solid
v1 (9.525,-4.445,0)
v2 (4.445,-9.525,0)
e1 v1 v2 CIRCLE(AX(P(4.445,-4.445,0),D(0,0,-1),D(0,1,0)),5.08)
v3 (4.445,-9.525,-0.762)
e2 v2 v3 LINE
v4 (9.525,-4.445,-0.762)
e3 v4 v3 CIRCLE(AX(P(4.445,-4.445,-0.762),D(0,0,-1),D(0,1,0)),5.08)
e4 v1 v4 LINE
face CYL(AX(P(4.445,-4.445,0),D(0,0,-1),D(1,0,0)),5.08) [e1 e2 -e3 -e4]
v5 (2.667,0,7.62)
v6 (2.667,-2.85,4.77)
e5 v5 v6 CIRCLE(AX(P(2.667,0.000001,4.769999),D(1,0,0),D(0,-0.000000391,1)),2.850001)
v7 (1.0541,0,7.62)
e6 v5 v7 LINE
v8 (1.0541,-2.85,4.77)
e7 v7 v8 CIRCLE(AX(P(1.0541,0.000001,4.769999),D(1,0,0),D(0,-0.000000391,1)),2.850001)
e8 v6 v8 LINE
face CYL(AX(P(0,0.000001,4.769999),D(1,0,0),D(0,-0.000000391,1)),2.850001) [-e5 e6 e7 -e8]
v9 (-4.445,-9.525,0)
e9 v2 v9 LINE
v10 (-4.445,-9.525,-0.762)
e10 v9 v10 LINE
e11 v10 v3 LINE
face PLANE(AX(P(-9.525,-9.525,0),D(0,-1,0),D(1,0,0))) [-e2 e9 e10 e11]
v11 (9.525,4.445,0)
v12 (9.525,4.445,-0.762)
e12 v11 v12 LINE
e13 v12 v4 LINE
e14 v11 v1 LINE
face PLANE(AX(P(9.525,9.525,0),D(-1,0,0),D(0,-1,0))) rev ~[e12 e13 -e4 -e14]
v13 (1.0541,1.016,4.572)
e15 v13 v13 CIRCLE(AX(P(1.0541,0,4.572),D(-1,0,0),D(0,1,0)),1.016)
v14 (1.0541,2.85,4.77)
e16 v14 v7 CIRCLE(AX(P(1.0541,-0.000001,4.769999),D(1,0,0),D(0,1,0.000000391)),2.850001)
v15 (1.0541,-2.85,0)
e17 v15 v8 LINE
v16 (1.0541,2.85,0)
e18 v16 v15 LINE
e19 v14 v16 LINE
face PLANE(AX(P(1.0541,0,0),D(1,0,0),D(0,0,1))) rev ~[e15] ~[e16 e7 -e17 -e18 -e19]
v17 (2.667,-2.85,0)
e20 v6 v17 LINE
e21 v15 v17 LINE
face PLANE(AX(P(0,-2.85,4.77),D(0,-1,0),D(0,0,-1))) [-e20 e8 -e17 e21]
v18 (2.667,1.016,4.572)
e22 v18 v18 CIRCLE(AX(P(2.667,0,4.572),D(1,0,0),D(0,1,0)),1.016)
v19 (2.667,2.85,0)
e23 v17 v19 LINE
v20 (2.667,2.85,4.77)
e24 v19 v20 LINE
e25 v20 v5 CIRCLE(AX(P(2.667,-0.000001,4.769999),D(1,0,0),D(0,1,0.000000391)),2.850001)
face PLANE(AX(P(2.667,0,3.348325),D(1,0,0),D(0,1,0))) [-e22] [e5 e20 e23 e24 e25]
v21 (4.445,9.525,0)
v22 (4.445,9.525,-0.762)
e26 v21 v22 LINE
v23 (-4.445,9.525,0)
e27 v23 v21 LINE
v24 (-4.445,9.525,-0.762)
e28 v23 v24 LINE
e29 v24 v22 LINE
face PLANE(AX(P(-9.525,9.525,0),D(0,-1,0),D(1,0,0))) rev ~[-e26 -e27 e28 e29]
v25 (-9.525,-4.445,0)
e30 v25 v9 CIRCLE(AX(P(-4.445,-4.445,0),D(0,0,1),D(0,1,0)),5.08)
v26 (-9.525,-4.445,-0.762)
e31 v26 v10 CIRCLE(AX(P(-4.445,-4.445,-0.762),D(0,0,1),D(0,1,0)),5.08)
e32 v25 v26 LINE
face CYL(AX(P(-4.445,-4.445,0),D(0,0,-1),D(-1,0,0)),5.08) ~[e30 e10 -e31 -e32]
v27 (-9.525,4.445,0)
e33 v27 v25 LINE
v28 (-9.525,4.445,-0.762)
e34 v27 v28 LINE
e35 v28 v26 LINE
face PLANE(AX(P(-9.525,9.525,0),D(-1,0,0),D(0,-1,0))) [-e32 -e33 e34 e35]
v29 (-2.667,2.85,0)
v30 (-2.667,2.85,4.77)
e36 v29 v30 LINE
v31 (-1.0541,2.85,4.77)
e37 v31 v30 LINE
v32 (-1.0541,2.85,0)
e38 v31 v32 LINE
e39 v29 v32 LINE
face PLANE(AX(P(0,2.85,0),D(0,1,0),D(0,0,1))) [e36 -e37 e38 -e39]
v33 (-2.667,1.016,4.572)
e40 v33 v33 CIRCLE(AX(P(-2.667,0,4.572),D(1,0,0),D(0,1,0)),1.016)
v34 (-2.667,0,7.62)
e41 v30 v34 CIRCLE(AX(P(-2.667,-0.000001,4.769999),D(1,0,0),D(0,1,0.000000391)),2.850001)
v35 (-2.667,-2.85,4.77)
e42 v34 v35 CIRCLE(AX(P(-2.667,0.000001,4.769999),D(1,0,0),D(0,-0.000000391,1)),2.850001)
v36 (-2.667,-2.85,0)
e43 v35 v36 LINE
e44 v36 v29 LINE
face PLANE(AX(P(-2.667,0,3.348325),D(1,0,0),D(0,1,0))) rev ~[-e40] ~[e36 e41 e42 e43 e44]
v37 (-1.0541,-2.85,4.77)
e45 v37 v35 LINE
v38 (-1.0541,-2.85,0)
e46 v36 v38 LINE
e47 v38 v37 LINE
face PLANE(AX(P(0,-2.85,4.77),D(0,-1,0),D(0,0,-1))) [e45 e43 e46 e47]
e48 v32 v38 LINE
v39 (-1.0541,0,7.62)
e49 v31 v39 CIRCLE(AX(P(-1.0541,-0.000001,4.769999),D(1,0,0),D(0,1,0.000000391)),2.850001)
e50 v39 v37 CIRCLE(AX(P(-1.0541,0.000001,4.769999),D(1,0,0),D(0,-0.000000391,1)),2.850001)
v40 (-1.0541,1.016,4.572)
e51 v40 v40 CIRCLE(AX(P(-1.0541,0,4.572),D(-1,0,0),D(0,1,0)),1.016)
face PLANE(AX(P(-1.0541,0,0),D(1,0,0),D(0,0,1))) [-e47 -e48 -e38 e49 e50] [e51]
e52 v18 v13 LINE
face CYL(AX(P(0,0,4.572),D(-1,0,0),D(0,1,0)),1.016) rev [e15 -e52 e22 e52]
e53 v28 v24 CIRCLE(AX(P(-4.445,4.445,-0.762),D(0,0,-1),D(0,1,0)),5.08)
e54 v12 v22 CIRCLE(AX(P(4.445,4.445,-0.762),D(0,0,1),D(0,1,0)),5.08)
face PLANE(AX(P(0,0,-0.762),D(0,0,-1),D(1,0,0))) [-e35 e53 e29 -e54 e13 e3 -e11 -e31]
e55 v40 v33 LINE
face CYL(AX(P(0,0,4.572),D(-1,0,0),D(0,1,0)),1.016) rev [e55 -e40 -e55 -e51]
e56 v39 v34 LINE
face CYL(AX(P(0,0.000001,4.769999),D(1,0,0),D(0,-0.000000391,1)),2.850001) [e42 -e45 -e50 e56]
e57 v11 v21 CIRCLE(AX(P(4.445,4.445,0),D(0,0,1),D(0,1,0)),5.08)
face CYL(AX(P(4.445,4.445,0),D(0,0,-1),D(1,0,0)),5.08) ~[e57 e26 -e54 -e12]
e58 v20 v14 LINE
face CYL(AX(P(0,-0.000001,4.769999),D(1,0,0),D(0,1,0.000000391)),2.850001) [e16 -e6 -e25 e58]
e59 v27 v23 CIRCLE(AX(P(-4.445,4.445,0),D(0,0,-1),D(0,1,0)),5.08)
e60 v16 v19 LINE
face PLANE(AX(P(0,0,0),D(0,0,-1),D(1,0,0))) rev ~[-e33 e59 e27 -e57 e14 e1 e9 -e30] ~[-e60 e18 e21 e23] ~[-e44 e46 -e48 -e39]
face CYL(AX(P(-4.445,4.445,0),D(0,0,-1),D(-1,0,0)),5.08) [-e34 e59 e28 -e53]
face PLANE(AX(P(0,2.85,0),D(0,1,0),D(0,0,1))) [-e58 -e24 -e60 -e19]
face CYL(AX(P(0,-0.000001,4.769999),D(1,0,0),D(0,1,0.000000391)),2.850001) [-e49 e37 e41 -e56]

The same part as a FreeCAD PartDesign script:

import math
import FreeCAD as App
import Part
import Sketcher
from FreeCAD import Vector
Q = App.Units.Quantity


def edges_at(feature, points):
    """Names of the edges that pass closest to the given points."""
    edges = feature.Shape.Edges
    near = lambda p: min(range(len(edges)), key=lambda i: edges[i].distToShape(Part.Vertex(*p))[0])
    return sorted({f"Edge{near(p) + 1}" for p in points})


def add_polygon(sketch, points):
    """Adds a closed chain of lines whose ends are joined by coincident constraints."""
    first, n = sketch.GeometryCount, len(points)
    for a, b in zip(points, points[1:] + points[:1]):
        sketch.addGeometry(Part.LineSegment(App.Vector(*a, 0), App.Vector(*b, 0)), False)
    for i in range(n):
        sketch.addConstraint(Sketcher.Constraint("Coincident", first + i, 2, first + (i + 1) % n, 1))

doc = App.newDocument("Part")
params = doc.addObject("Spreadsheet::Sheet", "Params")
for row, (alias, value) in enumerate([
    ("sketch1_diameter", "0.08 in"),
    ("pad1_length", "0.21 in"),
    ("sketch2_width", "0.75 in"),
    ("pad2_length", "0.03 in"),
    ("sketch3_height", "0.5 in"),
    ("sketch3_width", "0.083 in"),
    ("pocket1_length", "1 in"),
    ("fillet_radius", "0.2 in"),
], start=1):
    params.set(f"A{row}", alias)
    params.set(f"B{row}", "=" + value)
    params.setAlias(f"B{row}", alias)

body = doc.addObject("PartDesign::Body", "Body")

# Sketch on YZ plane
sketch1 = body.newObject("Sketcher::SketchObject", "Sketch")
sketch1.AttachmentSupport = (doc.getObject("YZ_Plane"), [""])
sketch1.MapMode = "FlatFace"
sketch1.addGeometry(Part.LineSegment(Vector(-2.9, 4.8, 0), Vector(-2.9, 0, 0)), False)
sketch1.addGeometry(Part.LineSegment(Vector(-2.9, 0, 0), Vector(2.9, 0, 0)), False)
sketch1.addGeometry(Part.LineSegment(Vector(2.9, 0, 0), Vector(2.9, 4.8, 0)), False)
sketch1.addGeometry(Part.ArcOfCircle(Part.Circle(Vector(0, 4.8, 0), Vector(0, 0, 1), 2.9), math.radians(0), math.radians(90)), False)
sketch1.addGeometry(Part.ArcOfCircle(Part.Circle(Vector(0, 4.8, 0), Vector(0, 0, 1), 2.9), math.radians(90), math.radians(180)), False)
sketch1.addGeometry(Part.Circle(Vector(0, 4.6, 0), Vector(0, 0, 1), 1), False)
sketch1.addConstraint(Sketcher.Constraint("Coincident", 0, 2, 1, 1))
sketch1.addConstraint(Sketcher.Constraint("Coincident", 1, 2, 2, 1))
sketch1.addConstraint(Sketcher.Constraint("Tangent", 2, 2, 3, 1))
sketch1.addConstraint(Sketcher.Constraint("Tangent", 3, 2, 4, 1))
sketch1.addConstraint(Sketcher.Constraint("Tangent", 4, 2, 0, 1))
sketch1.addConstraint(Sketcher.Constraint("Vertical", 0))
sketch1.addConstraint(Sketcher.Constraint("Horizontal", 1))
sketch1.addConstraint(Sketcher.Constraint("Vertical", 2))
sketch1.addConstraint(Sketcher.Constraint("Equal", 3, 4))
sketch1.addConstraint(Sketcher.Constraint("Symmetric", 0, 2, 1, 2, -1, 1))
sketch1.addConstraint(Sketcher.Constraint("PointOnObject", 5, 3, -2))
sketch1.addConstraint(Sketcher.Constraint("PointOnObject", 3, 2, -2))
sketch1.addConstraint(Sketcher.Constraint("Diameter", 5, Q("0.08 in")))
sketch1.addConstraint(Sketcher.Constraint("DistanceY", -1, 1, 3, 2, Q("0.3 in")))
sketch1.addConstraint(Sketcher.Constraint("DistanceY", -1, 1, 5, 3, Q("0.18 in")))
sketch1.addConstraint(Sketcher.Constraint("Radius", 3, 2.850001))
sketch1.setExpression("Constraints[12]", "Params.sketch1_diameter")
pad1 = body.newObject("PartDesign::Pad", "Pad")
pad1.Profile = sketch1
pad1.setExpression("Length", "Params.pad1_length")
pad1.Midplane = True

# Sketch on XY plane
sketch2 = body.newObject("Sketcher::SketchObject", "Sketch001")
sketch2.AttachmentSupport = (doc.getObject("XY_Plane"), [""])
sketch2.MapMode = "FlatFace"
add_polygon(sketch2, [(-10, -10), (-10, 10), (10, 10), (10, -10)])  # lines 0-3
sketch2.addConstraint(Sketcher.Constraint("Vertical", 0))
sketch2.addConstraint(Sketcher.Constraint("Horizontal", 1))
sketch2.addConstraint(Sketcher.Constraint("Vertical", 2))
sketch2.addConstraint(Sketcher.Constraint("Horizontal", 3))
sketch2.addConstraint(Sketcher.Constraint("Symmetric", 0, 2, 2, 2, -1, 1))
sketch2.addConstraint(Sketcher.Constraint("Equal", 3, 0))
sketch2.addConstraint(Sketcher.Constraint("DistanceX", 1, 1, 1, 2, Q("0.75 in")))
sketch2.setExpression("Constraints[10]", "Params.sketch2_width")
pad2 = body.newObject("PartDesign::Pad", "Pad001")
pad2.Profile = sketch2
pad2.setExpression("Length", "Params.pad2_length")
pad2.Reversed = True

# Sketch on XZ plane
sketch3 = body.newObject("Sketcher::SketchObject", "Sketch002")
sketch3.AttachmentSupport = (doc.getObject("XZ_Plane"), [""])
sketch3.MapMode = "FlatFace"
add_polygon(sketch3, [(-1.1, 12.7), (-1.1, 0), (1.1, 0), (1.1, 12.7)])  # lines 0-3
sketch3.addConstraint(Sketcher.Constraint("Vertical", 0))
sketch3.addConstraint(Sketcher.Constraint("Horizontal", 1))
sketch3.addConstraint(Sketcher.Constraint("Vertical", 2))
sketch3.addConstraint(Sketcher.Constraint("Horizontal", 3))
sketch3.addConstraint(Sketcher.Constraint("Symmetric", 0, 2, 1, 2, -1, 1))
sketch3.addConstraint(Sketcher.Constraint("DistanceY", 0, 2, 0, 1, Q("0.5 in")))
sketch3.addConstraint(Sketcher.Constraint("DistanceX", 1, 1, 1, 2, Q("0.083 in")))
sketch3.setExpression("Constraints[9]", "Params.sketch3_height")
sketch3.setExpression("Constraints[10]", "Params.sketch3_width")
pocket1 = body.newObject("PartDesign::Pocket", "Pocket")
pocket1.Profile = sketch3
pocket1.setExpression("Length", "Params.pocket1_length")
pocket1.Midplane = True
doc.recompute()

fillet = body.newObject("PartDesign::Fillet", "Fillet")
fillet.Base = (pocket1, edges_at(pocket1, [
    (9.525, 9.525, -0.381),
    (-9.525, 9.525, -0.381),
    (9.525, -9.525, -0.381),
    (-9.525, -9.525, -0.381),
]))
fillet.setExpression("Radius", "Params.fillet_radius")

doc.recompute()
